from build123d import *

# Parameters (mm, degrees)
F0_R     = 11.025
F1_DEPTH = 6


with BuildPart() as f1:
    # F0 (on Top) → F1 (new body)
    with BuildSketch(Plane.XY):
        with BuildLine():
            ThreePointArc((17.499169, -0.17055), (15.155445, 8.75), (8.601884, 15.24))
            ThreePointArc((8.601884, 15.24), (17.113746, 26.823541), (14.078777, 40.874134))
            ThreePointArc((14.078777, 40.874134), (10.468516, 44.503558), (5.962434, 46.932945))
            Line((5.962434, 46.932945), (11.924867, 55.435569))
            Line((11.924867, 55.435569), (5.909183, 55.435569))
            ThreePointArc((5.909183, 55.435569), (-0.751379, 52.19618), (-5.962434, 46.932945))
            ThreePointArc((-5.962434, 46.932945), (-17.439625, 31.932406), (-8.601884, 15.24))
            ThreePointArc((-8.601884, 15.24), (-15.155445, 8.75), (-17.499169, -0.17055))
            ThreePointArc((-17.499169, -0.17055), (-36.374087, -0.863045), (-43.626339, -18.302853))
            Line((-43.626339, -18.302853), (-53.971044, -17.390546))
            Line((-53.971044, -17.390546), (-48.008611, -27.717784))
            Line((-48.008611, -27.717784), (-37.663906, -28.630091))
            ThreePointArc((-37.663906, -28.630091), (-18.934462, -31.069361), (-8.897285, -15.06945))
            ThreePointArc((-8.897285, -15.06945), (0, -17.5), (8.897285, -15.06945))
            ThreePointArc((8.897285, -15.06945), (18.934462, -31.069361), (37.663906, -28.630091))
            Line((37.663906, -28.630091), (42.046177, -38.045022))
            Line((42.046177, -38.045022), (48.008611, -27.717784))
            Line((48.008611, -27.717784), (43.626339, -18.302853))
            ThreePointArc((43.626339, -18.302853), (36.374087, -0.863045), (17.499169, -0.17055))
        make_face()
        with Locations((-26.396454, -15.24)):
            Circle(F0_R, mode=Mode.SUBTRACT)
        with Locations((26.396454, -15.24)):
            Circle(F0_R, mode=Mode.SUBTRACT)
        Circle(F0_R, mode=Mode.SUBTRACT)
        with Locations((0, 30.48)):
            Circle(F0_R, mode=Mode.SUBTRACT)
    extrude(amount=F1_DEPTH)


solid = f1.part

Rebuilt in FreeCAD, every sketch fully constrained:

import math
import FreeCAD as App
import Part
import Sketcher

V = App.Vector
Q = App.Units.Quantity

doc = App.newDocument("Part")
body = doc.addObject("PartDesign::Body", "Body")

sketch1 = body.newObject("Sketcher::SketchObject", "Sketch")
sketch1.AttachmentSupport = (doc.getObject("XY_Plane"), [""])
sketch1.MapMode = "FlatFace"
sketch1.addGeometry(Part.ArcOfCircle(Part.Circle(V(0.000001, 0.000001, 0), V(0, 0, 1), 17.499999), math.radians(-0.5584), math.radians(60.558399)), False)
sketch1.addGeometry(Part.ArcOfCircle(Part.Circle(V(0, 30.48, 0), V(0, 0, 1), 17.5), math.radians(-60.558396), math.radians(36.437855)), False)
sketch1.addGeometry(Part.ArcOfCircle(Part.Circle(V(0.000001, 30.480004, 0), V(0, 0, 1), 17.499997), math.radians(36.437845), math.radians(70.07983)), False)
sketch1.addGeometry(Part.LineSegment(V(5.962434, 46.932945, 0), V(11.924867, 55.435569, 0)), False)
sketch1.addGeometry(Part.LineSegment(V(11.924867, 55.435569, 0), V(5.909183, 55.435569, 0)), False)
sketch1.addGeometry(Part.ArcOfCircle(Part.Circle(V(12.079821, 34.280875, 0), V(0, 0, 1), 22.036285), math.radians(106.261501), math.radians(144.960073)), False)
sketch1.addGeometry(Part.ArcOfCircle(Part.Circle(V(0.000001, 30.48, 0), V(0, 0, 1), 17.500001), math.radians(109.920169), math.radians(240.558396)), False)
sketch1.addGeometry(Part.ArcOfCircle(Part.Circle(V(-0.000001, 0.000001, 0), V(0, 0, 1), 17.499999), math.radians(119.441601), math.radians(180.5584)), False)
sketch1.addGeometry(Part.ArcOfCircle(Part.Circle(V(-26.396454, -15.24, 0), V(0, 0, 1), 17.5), math.radians(59.441605), math.radians(190.07983)), False)
sketch1.addGeometry(Part.LineSegment(V(-43.626339, -18.302853, 0), V(-53.971044, -17.390546, 0)), False)
sketch1.addGeometry(Part.LineSegment(V(-53.971044, -17.390546, 0), V(-48.008611, -27.717784, 0)), False)
sketch1.addGeometry(Part.LineSegment(V(-48.008611, -27.717784, 0), V(-37.663906, -28.630091, 0)), False)
sketch1.addGeometry(Part.ArcOfCircle(Part.Circle(V(-26.396454, -15.239999, 0), V(0, 0, 1), 17.5), math.radians(-130.079834), math.radians(0.558395)), False)
sketch1.addGeometry(Part.ArcOfCircle(Part.Circle(V(0, 0.000001, 0), V(0, 0, 1), 17.500001), math.radians(-120.558395), math.radians(-59.441605)), False)
sketch1.addGeometry(Part.ArcOfCircle(Part.Circle(V(26.396454, -15.239999, 0), V(0, 0, 1), 17.5), math.radians(179.441605), math.radians(310.079834)), False)
sketch1.addGeometry(Part.LineSegment(V(37.663906, -28.630091, 0), V(42.046177, -38.045022, 0)), False)
sketch1.addGeometry(Part.LineSegment(V(42.046177, -38.045022, 0), V(48.008611, -27.717784, 0)), False)
sketch1.addGeometry(Part.LineSegment(V(48.008611, -27.717784, 0), V(43.626339, -18.302853, 0)), False)
sketch1.addGeometry(Part.ArcOfCircle(Part.Circle(V(26.396454, -15.24, 0), V(0, 0, 1), 17.5), math.radians(-10.07983), math.radians(120.558395)), False)
sketch1.addGeometry(Part.Circle(V(-26.396454, -15.24, 0), V(0, 0, 1), 11.025), False)
sketch1.addGeometry(Part.Circle(V(26.396454, -15.24, 0), V(0, 0, 1), 11.025), False)
sketch1.addGeometry(Part.Circle(V(0, 0, 0), V(0, 0, 1), 11.025), False)
sketch1.addGeometry(Part.Circle(V(0, 30.48, 0), V(0, 0, 1), 11.025), False)
sketch1.addConstraint(Sketcher.Constraint("Coincident", 0, 2, 1, 1))
sketch1.addConstraint(Sketcher.Constraint("Coincident", 1, 2, 2, 1))
sketch1.addConstraint(Sketcher.Constraint("Coincident", 2, 2, 3, 1))
sketch1.addConstraint(Sketcher.Constraint("Coincident", 3, 2, 4, 1))
sketch1.addConstraint(Sketcher.Constraint("Coincident", 4, 2, 5, 1))
sketch1.addConstraint(Sketcher.Constraint("Coincident", 5, 2, 6, 1))
sketch1.addConstraint(Sketcher.Constraint("Coincident", 6, 2, 7, 1))
sketch1.addConstraint(Sketcher.Constraint("Coincident", 7, 2, 8, 1))
sketch1.addConstraint(Sketcher.Constraint("Coincident", 8, 2, 9, 1))
sketch1.addConstraint(Sketcher.Constraint("Coincident", 9, 2, 10, 1))
sketch1.addConstraint(Sketcher.Constraint("Coincident", 10, 2, 11, 1))
sketch1.addConstraint(Sketcher.Constraint("Coincident", 11, 2, 12, 1))
sketch1.addConstraint(Sketcher.Constraint("Coincident", 12, 2, 13, 1))
sketch1.addConstraint(Sketcher.Constraint("Coincident", 13, 2, 14, 1))
sketch1.addConstraint(Sketcher.Constraint("Coincident", 14, 2, 15, 1))
sketch1.addConstraint(Sketcher.Constraint("Coincident", 15, 2, 16, 1))
sketch1.addConstraint(Sketcher.Constraint("Coincident", 16, 2, 17, 1))
sketch1.addConstraint(Sketcher.Constraint("Coincident", 17, 2, 18, 1))
sketch1.addConstraint(Sketcher.Constraint("Coincident", 18, 2, 0, 1))
sketch1.addConstraint(Sketcher.Constraint("Horizontal", 4))
sketch1.addConstraint(Sketcher.Constraint("Coincident", 0, 3, -1, 1))
sketch1.addConstraint(Sketcher.Constraint("Coincident", 7, 3, -1, 1))
sketch1.addConstraint(Sketcher.Constraint("Coincident", 13, 3, -1, 1))
sketch1.addConstraint(Sketcher.Constraint("Coincident", 21, 3, -1, 1))
sketch1.addConstraint(Sketcher.Constraint("Coincident", 2, 3, 1, 3))
sketch1.addConstraint(Sketcher.Constraint("Coincident", 6, 3, 1, 3))
sketch1.addConstraint(Sketcher.Constraint("Coincident", 12, 3, 8, 3))
sketch1.addConstraint(Sketcher.Constraint("Coincident", 18, 3, 14, 3))
sketch1.addConstraint(Sketcher.Constraint("Coincident", 19, 3, 8, 3))
sketch1.addConstraint(Sketcher.Constraint("Coincident", 20, 3, 14, 3))
sketch1.addConstraint(Sketcher.Constraint("Coincident", 22, 3, 1, 3))
sketch1.addConstraint(Sketcher.Constraint("PointOnObject", 1, 3, -2))
sketch1.addConstraint(Sketcher.Constraint("Radius", 0, Q("17.499999 mm")))
sketch1.addConstraint(Sketcher.Constraint("Radius", 1, Q("17.5 mm")))
sketch1.addConstraint(Sketcher.Constraint("Radius", 6, Q("17.500001 mm")))
sketch1.addConstraint(Sketcher.Constraint("Radius", 7, Q("17.499999 mm")))
sketch1.addConstraint(Sketcher.Constraint("Radius", 8, Q("17.5 mm")))
sketch1.addConstraint(Sketcher.Constraint("Radius", 12, Q("17.5 mm")))
sketch1.addConstraint(Sketcher.Constraint("Radius", 13, Q("17.500001 mm")))
sketch1.addConstraint(Sketcher.Constraint("Radius", 14, Q("17.5 mm")))
sketch1.addConstraint(Sketcher.Constraint("Radius", 18, Q("17.5 mm")))
sketch1.addConstraint(Sketcher.Constraint("Diameter", 19, Q("22.05 mm")))
sketch1.addConstraint(Sketcher.Constraint("Diameter", 20, Q("22.05 mm")))
sketch1.addConstraint(Sketcher.Constraint("Diameter", 21, Q("22.05 mm")))
sketch1.addConstraint(Sketcher.Constraint("Diameter", 22, Q("22.05 mm")))
sketch1.addConstraint(Sketcher.Constraint("DistanceY", -1, 1, 1, 3, Q("30.48 mm")))
sketch1.addConstraint(Sketcher.Constraint("DistanceY", 8, 3, -1, 1, Q("15.24 mm")))
sketch1.addConstraint(Sketcher.Constraint("DistanceY", 14, 3, -1, 1, Q("15.239999 mm")))
sketch1.addConstraint(Sketcher.Constraint("Radius", 5, Q("22.036285 mm")))
sketch1.addConstraint(Sketcher.Constraint("DistanceY", 12, 2, 7, 2, Q("14.8989 mm")))
sketch1.addConstraint(Sketcher.Constraint("DistanceY", 13, 2, 18, 2, Q("14.8989 mm")))
sketch1.addConstraint(Sketcher.Constraint("DistanceX", 4, 2, 4, 1, Q("6.015684 mm")))
sketch1.addConstraint(Sketcher.Constraint("DistanceX", -1, 1, 5, 3, Q("12.079821 mm")))
sketch1.addConstraint(Sketcher.Constraint("DistanceY", -1, 1, 3, 2, Q("55.435569 mm")))
sketch1.addConstraint(Sketcher.Constraint("DistanceX", 8, 2, -1, 1, Q("43.626339 mm")))
sketch1.addConstraint(Sketcher.Constraint("DistanceX", 10, 2, -1, 1, Q("48.008611 mm")))
sketch1.addConstraint(Sketcher.Constraint("DistanceY", 11, 2, -1, 1, Q("28.630091 mm")))
sketch1.addConstraint(Sketcher.Constraint("DistanceY", 14, 2, -1, 1, Q("28.630091 mm")))
sketch1.addConstraint(Sketcher.Constraint("DistanceX", -1, 1, 16, 2, Q("48.008611 mm")))
sketch1.addConstraint(Sketcher.Constraint("DistanceX", -1, 1, 17, 2, Q("43.626339 mm")))
sketch1.addConstraint(Sketcher.Constraint("DistanceY", 2, 3, 5, 3, Q("3.800872 mm")))
sketch1.addConstraint(Sketcher.Constraint("DistanceY", 5, 3, 1, 2, Q("6.593259 mm")))
sketch1.addConstraint(Sketcher.Constraint("DistanceY", 1, 2, 2, 2, Q("6.058811 mm")))
sketch1.addConstraint(Sketcher.Constraint("DistanceX", 9, 2, 12, 3, Q("27.57459 mm")))
sketch1.addConstraint(Sketcher.Constraint("DistanceY", 10, 2, 8, 2, Q("9.414931 mm")))
sketch1.addConstraint(Sketcher.Constraint("DistanceY", 10, 2, 9, 2, Q("10.327238 mm")))
sketch1.addConstraint(Sketcher.Constraint("DistanceX", 14, 2, 15, 2, Q("4.382271 mm")))
sketch1.addConstraint(Sketcher.Constraint("DistanceY", 15, 2, 14, 2, Q("9.414931 mm")))
sketch1.addConstraint(Sketcher.Constraint("DistanceY", 15, 2, 16, 2, Q("10.327238 mm")))
pad1 = body.newObject("PartDesign::Pad", "Pad")
pad1.Profile = sketch1
pad1.Length = 6

doc.recompute()
